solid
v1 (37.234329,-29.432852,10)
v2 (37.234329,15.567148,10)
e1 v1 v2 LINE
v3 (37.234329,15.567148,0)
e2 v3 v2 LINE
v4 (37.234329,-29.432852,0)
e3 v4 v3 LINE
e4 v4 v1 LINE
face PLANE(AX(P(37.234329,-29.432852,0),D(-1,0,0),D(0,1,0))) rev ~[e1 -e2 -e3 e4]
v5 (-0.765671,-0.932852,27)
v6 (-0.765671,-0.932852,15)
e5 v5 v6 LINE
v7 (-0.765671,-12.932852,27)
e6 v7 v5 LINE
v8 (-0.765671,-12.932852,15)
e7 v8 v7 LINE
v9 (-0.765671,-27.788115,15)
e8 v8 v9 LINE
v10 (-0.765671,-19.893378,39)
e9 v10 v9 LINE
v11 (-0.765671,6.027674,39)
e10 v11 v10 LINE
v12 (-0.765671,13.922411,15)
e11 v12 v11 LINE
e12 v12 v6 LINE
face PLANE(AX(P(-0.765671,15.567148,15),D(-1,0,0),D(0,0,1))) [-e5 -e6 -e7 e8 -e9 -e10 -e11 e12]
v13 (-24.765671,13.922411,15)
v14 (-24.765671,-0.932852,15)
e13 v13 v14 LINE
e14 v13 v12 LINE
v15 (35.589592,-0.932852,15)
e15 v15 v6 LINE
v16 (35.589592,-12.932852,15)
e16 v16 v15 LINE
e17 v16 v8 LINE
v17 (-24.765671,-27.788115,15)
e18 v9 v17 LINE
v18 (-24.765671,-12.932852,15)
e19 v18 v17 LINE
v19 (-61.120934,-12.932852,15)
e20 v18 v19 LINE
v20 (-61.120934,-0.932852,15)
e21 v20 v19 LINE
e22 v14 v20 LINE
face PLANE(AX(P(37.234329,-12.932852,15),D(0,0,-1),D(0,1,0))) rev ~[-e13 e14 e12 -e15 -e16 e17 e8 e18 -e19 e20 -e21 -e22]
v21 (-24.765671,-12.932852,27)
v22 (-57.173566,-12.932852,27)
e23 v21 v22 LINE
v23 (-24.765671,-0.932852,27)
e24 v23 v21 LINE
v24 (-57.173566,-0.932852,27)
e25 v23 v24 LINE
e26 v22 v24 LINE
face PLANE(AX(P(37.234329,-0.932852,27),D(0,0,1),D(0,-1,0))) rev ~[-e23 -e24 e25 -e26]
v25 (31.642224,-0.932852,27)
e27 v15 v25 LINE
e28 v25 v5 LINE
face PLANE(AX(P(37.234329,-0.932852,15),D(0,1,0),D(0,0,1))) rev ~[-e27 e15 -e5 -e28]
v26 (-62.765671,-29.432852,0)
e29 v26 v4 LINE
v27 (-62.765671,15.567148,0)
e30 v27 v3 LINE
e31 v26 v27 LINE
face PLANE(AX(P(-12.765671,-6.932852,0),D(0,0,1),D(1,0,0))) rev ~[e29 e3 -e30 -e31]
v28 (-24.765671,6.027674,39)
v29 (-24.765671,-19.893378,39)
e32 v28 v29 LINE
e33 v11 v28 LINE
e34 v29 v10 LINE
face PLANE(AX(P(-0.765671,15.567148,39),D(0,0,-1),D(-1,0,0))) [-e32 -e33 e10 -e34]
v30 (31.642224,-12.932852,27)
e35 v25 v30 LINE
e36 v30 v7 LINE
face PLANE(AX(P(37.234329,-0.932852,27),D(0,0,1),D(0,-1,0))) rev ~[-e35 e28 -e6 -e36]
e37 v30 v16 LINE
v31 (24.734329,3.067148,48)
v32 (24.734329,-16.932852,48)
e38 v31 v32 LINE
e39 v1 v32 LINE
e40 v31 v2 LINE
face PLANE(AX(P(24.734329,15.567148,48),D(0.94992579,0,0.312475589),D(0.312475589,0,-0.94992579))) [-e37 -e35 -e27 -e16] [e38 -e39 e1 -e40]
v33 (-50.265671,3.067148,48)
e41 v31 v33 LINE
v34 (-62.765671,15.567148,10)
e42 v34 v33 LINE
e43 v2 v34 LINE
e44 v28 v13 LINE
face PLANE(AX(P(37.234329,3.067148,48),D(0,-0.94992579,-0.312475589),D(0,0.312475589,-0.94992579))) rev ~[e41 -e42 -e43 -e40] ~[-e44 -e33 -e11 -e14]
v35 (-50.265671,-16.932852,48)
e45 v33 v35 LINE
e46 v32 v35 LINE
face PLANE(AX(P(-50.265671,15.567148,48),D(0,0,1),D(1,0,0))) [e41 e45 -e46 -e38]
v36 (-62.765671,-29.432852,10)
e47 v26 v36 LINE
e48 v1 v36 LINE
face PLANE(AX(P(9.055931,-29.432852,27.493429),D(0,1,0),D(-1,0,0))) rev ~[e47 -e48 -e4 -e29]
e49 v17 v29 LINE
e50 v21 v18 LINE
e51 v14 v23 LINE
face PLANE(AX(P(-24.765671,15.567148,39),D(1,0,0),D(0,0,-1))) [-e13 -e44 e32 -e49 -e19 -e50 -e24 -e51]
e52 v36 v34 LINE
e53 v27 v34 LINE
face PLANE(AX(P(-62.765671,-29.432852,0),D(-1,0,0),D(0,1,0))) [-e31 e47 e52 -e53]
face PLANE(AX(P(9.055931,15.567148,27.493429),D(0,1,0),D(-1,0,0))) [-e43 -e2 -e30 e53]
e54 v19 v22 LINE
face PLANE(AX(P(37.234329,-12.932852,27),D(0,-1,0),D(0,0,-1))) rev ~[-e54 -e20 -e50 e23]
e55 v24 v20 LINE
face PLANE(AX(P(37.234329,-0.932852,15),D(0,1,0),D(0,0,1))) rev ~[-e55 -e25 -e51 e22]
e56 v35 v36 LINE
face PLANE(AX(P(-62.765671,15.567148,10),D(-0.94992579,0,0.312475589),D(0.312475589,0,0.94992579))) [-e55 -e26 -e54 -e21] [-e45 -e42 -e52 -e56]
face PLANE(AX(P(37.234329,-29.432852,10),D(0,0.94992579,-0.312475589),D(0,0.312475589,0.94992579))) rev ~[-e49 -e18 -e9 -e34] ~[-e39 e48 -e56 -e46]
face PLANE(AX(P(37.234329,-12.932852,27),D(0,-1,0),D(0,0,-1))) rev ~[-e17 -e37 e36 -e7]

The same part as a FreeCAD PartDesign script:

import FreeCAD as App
import Part
import Sketcher
Q = App.Units.Quantity


def add_polygon(sketch, points):
    """Adds a closed chain of lines whose ends are joined by coincident constraints."""
    first, n = sketch.GeometryCount, len(points)
    for a, b in zip(points, points[1:] + points[:1]):
        sketch.addGeometry(Part.LineSegment(App.Vector(*a, 0), App.Vector(*b, 0)), False)
    for i in range(n):
        sketch.addConstraint(Sketcher.Constraint("Coincident", first + i, 2, first + (i + 1) % n, 1))

doc = App.newDocument("Part")
body = doc.addObject("PartDesign::Body", "Body")

# Sketch on XY plane
sketch1 = body.newObject("Sketcher::SketchObject", "Sketch")
sketch1.AttachmentSupport = (doc.getObject("XY_Plane"), [""])
sketch1.MapMode = "FlatFace"
add_polygon(sketch1, [(-63, 16), (-63, -29), (37, -29), (37, 16)])  # lines 0-3
sketch1.addConstraint(Sketcher.Constraint("Vertical", 0))
sketch1.addConstraint(Sketcher.Constraint("Horizontal", 1))
sketch1.addConstraint(Sketcher.Constraint("Vertical", 2))
sketch1.addConstraint(Sketcher.Constraint("Horizontal", 3))
sketch1.addConstraint(Sketcher.Constraint("DistanceX", 1, 1, 1, 2, Q("100 mm")))
sketch1.addConstraint(Sketcher.Constraint("DistanceY", 0, 2, 0, 1, Q("45 mm")))
sketch1.addConstraint(Sketcher.Constraint("DistanceX", 0, 2, -1, 1, Q("62.765671 mm")))
sketch1.addConstraint(Sketcher.Constraint("DistanceY", 0, 2, -1, 1, Q("29.432852 mm")))
pad1 = body.newObject("PartDesign::Pad", "Pad")
pad1.Profile = sketch1
pad1.Length = 10

# Sketch on XZ plane
sketch2 = body.newObject("Sketcher::SketchObject", "Sketch001")
sketch2.AttachmentSupport = (doc.getObject("XZ_Plane"), [""])
sketch2.MapMode = "FlatFace"
sketch2.AttachmentOffset = App.Placement(App.Vector(0, 0, -15.567148), App.Rotation())
add_polygon(sketch2, [(25, 48), (37, 10), (-63, 10), (-50, 48)])  # lines 0-3
add_polygon(sketch2, [(-1, 15), (-1, 39), (-25, 39), (-25, 15)])  # lines 4-7
sketch2.addConstraint(Sketcher.Constraint("Horizontal", 1))
sketch2.addConstraint(Sketcher.Constraint("Horizontal", 3))
sketch2.addConstraint(Sketcher.Constraint("Vertical", 4))
sketch2.addConstraint(Sketcher.Constraint("Horizontal", 5))
sketch2.addConstraint(Sketcher.Constraint("Vertical", 6))
sketch2.addConstraint(Sketcher.Constraint("Horizontal", 7))
sketch2.addConstraint(Sketcher.Constraint("Equal", 7, 4))
sketch2.addConstraint(Sketcher.Constraint("Equal", 0, 2))
sketch2.addConstraint(Sketcher.Constraint("DistanceX", 1, 2, 1, 1, Q("100 mm")))
sketch2.addConstraint(Sketcher.Constraint("DistanceX", 3, 1, 3, 2, Q("75 mm")))
sketch2.addConstraint(Sketcher.Constraint("DistanceX", 5, 2, 5, 1, Q("24 mm")))
sketch2.addConstraint(Sketcher.Constraint("DistanceY", -1, 1, 0, 2, Q("10 mm")))
sketch2.addConstraint(Sketcher.Constraint("DistanceY", -1, 1, 2, 2, Q("48 mm")))
sketch2.addConstraint(Sketcher.Constraint("DistanceY", -1, 1, 4, 2, Q("39 mm")))
sketch2.addConstraint(Sketcher.Constraint("DistanceX", 4, 2, 0, 2, Q("38 mm")))
sketch2.addConstraint(Sketcher.Constraint("DistanceX", -1, 1, 0, 2, Q("37.234329 mm")))
pad2 = body.newObject("PartDesign::Pad", "Pad001")
pad2.Profile = sketch2
pad2.Length = 45

# Sketch on YZ plane
sketch3 = body.newObject("Sketcher::SketchObject", "Sketch002")
sketch3.AttachmentSupport = (doc.getObject("YZ_Plane"), [""])
sketch3.MapMode = "FlatFace"
sketch3.AttachmentOffset = App.Placement(App.Vector(0, 0, 37.234329), App.Rotation())
add_polygon(sketch3, [(-29, 10), (-17, 48), (-29, 48)])  # lines 0-2
add_polygon(sketch3, [(16, 48), (3, 48), (16, 10)])  # lines 3-5
add_polygon(sketch3, [(-1, 27), (-13, 27), (-13, 15), (-1, 15)])  # lines 6-9
sketch3.addConstraint(Sketcher.Constraint("Horizontal", 1))
sketch3.addConstraint(Sketcher.Constraint("Vertical", 2))
sketch3.addConstraint(Sketcher.Constraint("Horizontal", 3))
sketch3.addConstraint(Sketcher.Constraint("Vertical", 5))
sketch3.addConstraint(Sketcher.Constraint("Horizontal", 6))
sketch3.addConstraint(Sketcher.Constraint("Vertical", 7))
sketch3.addConstraint(Sketcher.Constraint("Horizontal", 8))
sketch3.addConstraint(Sketcher.Constraint("Vertical", 9))
sketch3.addConstraint(Sketcher.Constraint("Horizontal", 1, 2, 3, 2))
sketch3.addConstraint(Sketcher.Constraint("Horizontal", 2, 2, 4, 2))
sketch3.addConstraint(Sketcher.Constraint("Equal", 1, 3))
sketch3.addConstraint(Sketcher.Constraint("Equal", 8, 7))
sketch3.addConstraint(Sketcher.Constraint("DistanceX", 6, 2, 6, 1, Q("12 mm")))
sketch3.addConstraint(Sketcher.Constraint("DistanceY", 2, 2, 2, 1, Q("38 mm")))
sketch3.addConstraint(Sketcher.Constraint("DistanceX", 1, 2, 1, 1, Q("12.5 mm")))
sketch3.addConstraint(Sketcher.Constraint("DistanceY", -1, 1, 0, 2, Q("48 mm")))
sketch3.addConstraint(Sketcher.Constraint("DistanceY", -1, 1, 6, 2, Q("27 mm")))
sketch3.addConstraint(Sketcher.Constraint("DistanceX", 0, 2, 3, 2, Q("20 mm")))
sketch3.addConstraint(Sketcher.Constraint("DistanceX", 0, 2, 6, 2, Q("4 mm")))
sketch3.addConstraint(Sketcher.Constraint("DistanceX", -1, 1, 3, 2, Q("3.067148 mm")))
pocket1 = body.newObject("PartDesign::Pocket", "Pocket")
pocket1.Profile = sketch3
pocket1.Length = 122

doc.recompute()
